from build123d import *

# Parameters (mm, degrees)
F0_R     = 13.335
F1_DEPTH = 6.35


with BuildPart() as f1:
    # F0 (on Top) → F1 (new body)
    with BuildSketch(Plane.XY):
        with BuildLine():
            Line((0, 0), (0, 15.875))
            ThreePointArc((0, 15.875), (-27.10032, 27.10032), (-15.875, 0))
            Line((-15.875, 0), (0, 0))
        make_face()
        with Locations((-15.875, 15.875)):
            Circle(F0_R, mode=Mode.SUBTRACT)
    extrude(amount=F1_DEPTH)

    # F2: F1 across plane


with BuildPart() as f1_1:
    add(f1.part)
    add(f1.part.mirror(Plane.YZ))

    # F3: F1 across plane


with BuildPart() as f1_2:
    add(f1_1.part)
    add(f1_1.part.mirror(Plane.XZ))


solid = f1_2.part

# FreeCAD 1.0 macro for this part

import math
import FreeCAD as App
import Part
import Sketcher

V = App.Vector
Q = App.Units.Quantity

doc = App.newDocument("Part")
body = doc.addObject("PartDesign::Body", "Body")

# Sketch on XY plane
sketch1 = body.newObject("Sketcher::SketchObject", "Sketch")
sketch1.AttachmentSupport = (doc.getObject("XY_Plane"), [""])
sketch1.MapMode = "FlatFace"
sketch1.addGeometry([
    Part.LineSegment(V(0, 0, 0), V(0, 16, 0)),
    Part.ArcOfCircle(Part.Circle(V(-16, 16, 0), V(0, 0, 1), 16), math.radians(0), math.radians(270)),
    Part.LineSegment(V(-16, 0, 0), V(0, 0, 0)),
    Part.Circle(V(-16, 16, 0), V(0, 0, 1), 13),
], False)
sketch1.addConstraint([
    Sketcher.Constraint("Tangent", 0, 2, 1, 1),
    Sketcher.Constraint("Tangent", 1, 2, 2, 1),
    Sketcher.Constraint("Coincident", 2, 2, 0, 1),
    Sketcher.Constraint("Vertical", 0),
    Sketcher.Constraint("Horizontal", 2),
    Sketcher.Constraint("Coincident", 2, 2, -1, 1),
    Sketcher.Constraint("Coincident", 3, 3, 1, 3),
    Sketcher.Constraint("Diameter", 3, Q("1.05 in")),
    Sketcher.Constraint("Radius", 1, Q("0.625 in")),
])
pad1 = body.newObject("PartDesign::Pad", "Pad")
pad1.Profile = sketch1
pad1.Length = Q("0.25 in")
body2 = doc.addObject("PartDesign::Body", "Body001")
doc.recompute()

body2.BaseFeature = body
doc.recompute()

mirroring = doc.addObject("Part::Mirroring", "Mirroring")
mirroring.Source = body
mirroring.Base = V(0, 0, 0)
mirroring.Normal = V(1, 0, 0)
body3 = doc.addObject("PartDesign::Body", "Body002")
body3.BaseFeature = mirroring
boolean = body2.newObject("PartDesign::Boolean", "Boolean")
boolean.Type = "Fuse"
boolean.addObjects([body3])
doc.recompute()
body4 = doc.addObject("PartDesign::Body", "Body003")
doc.recompute()

body4.BaseFeature = body2
doc.recompute()

mirroring2 = doc.addObject("Part::Mirroring", "Mirroring001")
mirroring2.Source = body2
mirroring2.Base = V(0, 0, 0)
mirroring2.Normal = V(0, -1, 0)
body5 = doc.addObject("PartDesign::Body", "Body004")
body5.BaseFeature = mirroring2
boolean2 = body4.newObject("PartDesign::Boolean", "Boolean001")
boolean2.Type = "Fuse"
boolean2.addObjects([body5])
doc.recompute()
mirroring.Visibility = False
mirroring2.Visibility = False

doc.recompute()
